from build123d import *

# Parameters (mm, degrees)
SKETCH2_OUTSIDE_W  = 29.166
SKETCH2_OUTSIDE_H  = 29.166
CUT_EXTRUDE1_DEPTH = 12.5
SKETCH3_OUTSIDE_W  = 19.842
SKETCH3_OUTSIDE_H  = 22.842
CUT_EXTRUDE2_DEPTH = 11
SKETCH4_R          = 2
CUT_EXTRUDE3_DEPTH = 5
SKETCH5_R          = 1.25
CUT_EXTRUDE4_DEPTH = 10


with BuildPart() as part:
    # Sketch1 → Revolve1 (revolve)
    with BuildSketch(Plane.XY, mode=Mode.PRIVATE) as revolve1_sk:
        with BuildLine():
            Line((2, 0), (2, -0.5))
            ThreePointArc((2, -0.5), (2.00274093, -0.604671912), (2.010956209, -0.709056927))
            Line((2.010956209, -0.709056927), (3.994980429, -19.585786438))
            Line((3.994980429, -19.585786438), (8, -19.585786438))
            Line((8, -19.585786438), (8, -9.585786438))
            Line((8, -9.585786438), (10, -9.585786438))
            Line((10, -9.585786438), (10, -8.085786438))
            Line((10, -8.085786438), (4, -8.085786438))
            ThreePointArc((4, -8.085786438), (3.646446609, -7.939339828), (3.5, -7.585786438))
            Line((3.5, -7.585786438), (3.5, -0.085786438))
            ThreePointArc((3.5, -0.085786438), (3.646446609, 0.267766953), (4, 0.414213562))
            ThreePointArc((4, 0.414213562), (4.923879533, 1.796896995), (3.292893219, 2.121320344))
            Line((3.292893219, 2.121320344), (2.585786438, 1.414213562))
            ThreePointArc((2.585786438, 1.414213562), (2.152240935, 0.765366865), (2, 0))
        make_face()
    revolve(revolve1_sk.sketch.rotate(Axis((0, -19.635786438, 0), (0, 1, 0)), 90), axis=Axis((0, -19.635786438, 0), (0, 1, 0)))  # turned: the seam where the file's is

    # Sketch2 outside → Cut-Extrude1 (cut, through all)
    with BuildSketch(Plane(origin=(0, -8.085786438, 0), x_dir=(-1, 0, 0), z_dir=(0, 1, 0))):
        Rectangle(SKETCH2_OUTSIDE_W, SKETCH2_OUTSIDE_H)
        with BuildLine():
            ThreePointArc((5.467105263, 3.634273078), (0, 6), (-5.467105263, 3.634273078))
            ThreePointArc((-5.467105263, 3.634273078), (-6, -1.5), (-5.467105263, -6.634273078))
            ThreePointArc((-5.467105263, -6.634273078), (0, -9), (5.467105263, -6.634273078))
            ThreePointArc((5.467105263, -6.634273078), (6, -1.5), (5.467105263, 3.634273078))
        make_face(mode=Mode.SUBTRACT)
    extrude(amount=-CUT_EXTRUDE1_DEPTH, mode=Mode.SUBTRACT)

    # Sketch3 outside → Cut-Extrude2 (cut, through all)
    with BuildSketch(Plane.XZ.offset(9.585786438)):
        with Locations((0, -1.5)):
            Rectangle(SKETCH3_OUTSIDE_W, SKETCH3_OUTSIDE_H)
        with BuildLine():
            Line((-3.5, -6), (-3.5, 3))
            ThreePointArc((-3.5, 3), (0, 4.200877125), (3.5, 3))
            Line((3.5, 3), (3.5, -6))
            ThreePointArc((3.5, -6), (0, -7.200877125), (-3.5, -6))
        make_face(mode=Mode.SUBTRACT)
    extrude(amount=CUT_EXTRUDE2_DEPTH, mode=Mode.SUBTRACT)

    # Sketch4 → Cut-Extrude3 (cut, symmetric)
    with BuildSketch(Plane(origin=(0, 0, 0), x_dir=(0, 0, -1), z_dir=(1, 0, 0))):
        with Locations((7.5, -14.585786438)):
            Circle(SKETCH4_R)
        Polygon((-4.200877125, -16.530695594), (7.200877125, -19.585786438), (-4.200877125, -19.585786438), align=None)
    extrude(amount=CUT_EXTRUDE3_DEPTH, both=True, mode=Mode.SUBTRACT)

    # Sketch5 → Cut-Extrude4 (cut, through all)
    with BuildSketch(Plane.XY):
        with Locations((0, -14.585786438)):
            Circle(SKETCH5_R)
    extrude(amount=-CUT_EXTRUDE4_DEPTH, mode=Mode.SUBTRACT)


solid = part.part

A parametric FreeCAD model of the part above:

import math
import FreeCAD as App
import Part
import Sketcher

V = App.Vector
Q = App.Units.Quantity


def add_polygon(sketch, points):
    """Adds a closed chain of lines whose ends are joined by coincident constraints."""
    first, n = sketch.GeometryCount, len(points)
    for a, b in zip(points, points[1:] + points[:1]):
        sketch.addGeometry(Part.LineSegment(App.Vector(*a, 0), App.Vector(*b, 0)), False)
    for i in range(n):
        sketch.addConstraint(Sketcher.Constraint("Coincident", first + i, 2, first + (i + 1) % n, 1))

doc = App.newDocument("Part")
body = doc.addObject("PartDesign::Body", "Body")

# Sketch on XY plane
sketch1 = body.newObject("Sketcher::SketchObject", "Sketch")
sketch1.AttachmentSupport = (doc.getObject("XY_Plane"), [""])
sketch1.MapMode = "FlatFace"
sketch1.addGeometry([
    Part.LineSegment(V(2, 0, 0), V(2, -0.5, 0)),  # 0
    Part.ArcOfCircle(Part.Circle(V(4, -0.5, 0), V(0, 0, 1), 2), math.radians(180), math.radians(186)),  # 1
    Part.LineSegment(V(2.01, -0.71, 0), V(3.99, -19.59, 0)),  # 2
    Part.LineSegment(V(3.99, -19.59, 0), V(8, -19.59, 0)),  # 3
    Part.LineSegment(V(8, -19.59, 0), V(8, -9.59, 0)),  # 4
    Part.LineSegment(V(8, -9.59, 0), V(10, -9.59, 0)),  # 5
    Part.LineSegment(V(10, -9.59, 0), V(10, -8.09, 0)),  # 6
    Part.LineSegment(V(10, -8.09, 0), V(4, -8.09, 0)),  # 7
    Part.ArcOfCircle(Part.Circle(V(4, -7.59, 0), V(0, 0, 1), 0.5), math.radians(180), math.radians(270)),  # 8
    Part.LineSegment(V(3.5, -7.59, 0), V(3.5, -0.09, 0)),  # 9
    Part.ArcOfCircle(Part.Circle(V(4, -0.09, 0), V(0, 0, 1), 0.5), math.radians(90), math.radians(180)),  # 10
    Part.ArcOfCircle(Part.Circle(V(4, 1.41, 0), V(0, 0, 1), 1), math.radians(-90), math.radians(135)),  # 11
    Part.LineSegment(V(3.29, 2.12, 0), V(2.59, 1.41, 0)),  # 12
    Part.ArcOfCircle(Part.Circle(V(4, 0, 0), V(0, 0, 1), 2), math.radians(135), math.radians(180)),  # 13
], False)
sketch1.addConstraint([
    Sketcher.Constraint("Tangent", 0, 2, 1, 1),
    Sketcher.Constraint("Tangent", 1, 2, 2, 1),
    Sketcher.Constraint("Coincident", 2, 2, 3, 1),
    Sketcher.Constraint("Coincident", 3, 2, 4, 1),
    Sketcher.Constraint("Coincident", 4, 2, 5, 1),
    Sketcher.Constraint("Coincident", 5, 2, 6, 1),
    Sketcher.Constraint("Coincident", 6, 2, 7, 1),
    Sketcher.Constraint("Tangent", 7, 2, 8, 2),
    Sketcher.Constraint("Tangent", 8, 1, 9, 1),
    Sketcher.Constraint("Tangent", 9, 2, 10, 2),
    Sketcher.Constraint("Tangent", 10, 1, 11, 1),
    Sketcher.Constraint("Tangent", 11, 2, 12, 1),
    Sketcher.Constraint("Tangent", 12, 2, 13, 1),
    Sketcher.Constraint("Tangent", 13, 2, 0, 1),
    Sketcher.Constraint("Vertical", 0),
    Sketcher.Constraint("Horizontal", 3),
    Sketcher.Constraint("Vertical", 4),
    Sketcher.Constraint("Horizontal", 5),
    Sketcher.Constraint("Vertical", 6),
    Sketcher.Constraint("Horizontal", 7),
    Sketcher.Constraint("Vertical", 9),
    Sketcher.Constraint("Equal", 8, 10),
    Sketcher.Constraint("Equal", 1, 13),
    Sketcher.Constraint("PointOnObject", 13, 3, -1),
    Sketcher.Constraint("Horizontal", 11, 3, 12, 2),
    Sketcher.Constraint("Vertical", 1, 3, 8, 3),
    Sketcher.Constraint("Vertical", 10, 3, 11, 3),
    Sketcher.Constraint("Radius", 1, Q("2 mm")),
    Sketcher.Constraint("Radius", 11, Q("1 mm")),
    Sketcher.Constraint("Radius", 8, Q("0.5 mm")),
    Sketcher.Constraint("DistanceX", 5, 1, 5, 2, Q("2 mm")),
    Sketcher.Constraint("DistanceX", 7, 2, 7, 1, Q("6 mm")),
    Sketcher.Constraint("DistanceY", 4, 1, 4, 2, Q("10 mm")),
    Sketcher.Constraint("Angle", 2, Q("-84 deg")),
    Sketcher.Constraint("DistanceY", 0, 2, 0, 1, Q("0.5 mm")),
    Sketcher.Constraint("DistanceY", 6, 1, 6, 2, Q("1.5 mm")),
    Sketcher.Constraint("DistanceY", 9, 1, 9, 2, Q("7.5 mm")),
    Sketcher.Constraint("DistanceX", -1, 1, 1, 3, Q("4 mm")),
])
revolution = body.newObject("PartDesign::Revolution", "Revolution")
revolution.Profile = sketch1
revolution.ReferenceAxis = (sketch1, ["V_Axis"])
revolution.Angle = 360

# Sketch on XZ plane
sketch2 = body.newObject("Sketcher::SketchObject", "Sketch001")
sketch2.AttachmentSupport = (doc.getObject("XZ_Plane"), [""])
sketch2.MapMode = "FlatFace"
sketch2.AttachmentOffset = App.Placement(V(0, 0, 8.085786), App.Rotation())
add_polygon(sketch2, [(15, 15), (15, -15), (-15, -15), (-15, 15)])  # lines 0-3
sketch2.addGeometry(Part.ArcOfCircle(Part.Circle(V(0, -1, 0), V(0, 0, 1), 7), math.radians(43), math.radians(137)), False)  # 4
sketch2.addGeometry(Part.ArcOfCircle(Part.Circle(V(19, -2, 0), V(0, 0, 1), 25), math.radians(168), math.radians(192)), False)  # 5
sketch2.addGeometry(Part.ArcOfCircle(Part.Circle(V(0, -2, 0), V(0, 0, 1), 7), math.radians(-137), math.radians(-43)), False)  # 6
sketch2.addGeometry(Part.ArcOfCircle(Part.Circle(V(-19, -2, 0), V(0, 0, 1), 25), math.radians(-12), math.radians(12)), False)  # 7
sketch2.addConstraint([
    Sketcher.Constraint("Coincident", 4, 2, 5, 1),
    Sketcher.Constraint("Coincident", 5, 2, 6, 1),
    Sketcher.Constraint("Coincident", 6, 2, 7, 1),
    Sketcher.Constraint("Coincident", 7, 2, 4, 1),
    Sketcher.Constraint("Vertical", 0),
    Sketcher.Constraint("Horizontal", 1),
    Sketcher.Constraint("Vertical", 2),
    Sketcher.Constraint("Horizontal", 3),
    Sketcher.Constraint("Coincident", 6, 3, 4, 3),
    Sketcher.Constraint("Equal", 4, 6),
    Sketcher.Constraint("Equal", 5, 7),
    Sketcher.Constraint("Symmetric", 0, 2, 2, 2, -1, 1),
    Sketcher.Constraint("Symmetric", 5, 3, 7, 3, -2),
    Sketcher.Constraint("PointOnObject", 4, 3, -2),
    Sketcher.Constraint("Horizontal", 4, 3, 5, 3),
    Sketcher.Constraint("Equal", 3, 0),
    Sketcher.Constraint("Radius", 5, Q("25 mm")),
    Sketcher.Constraint("Radius", 4, Q("7.5 mm")),
    Sketcher.Constraint("DistanceX", -1, 1, 5, 3, Q("19 mm")),
    Sketcher.Constraint("DistanceY", 4, 3, -1, 1, Q("1.5 mm")),
    Sketcher.Constraint("DistanceX", 1, 2, 1, 1, Q("29.166 mm")),
])
pocket1 = body.newObject("PartDesign::Pocket", "Pocket")
pocket1.Profile = sketch2
pocket1.Type = "ThroughAll"
pocket1.Reversed = True

# Sketch on XZ plane
sketch3 = body.newObject("Sketcher::SketchObject", "Sketch002")
sketch3.AttachmentSupport = (doc.getObject("XZ_Plane"), [""])
sketch3.MapMode = "FlatFace"
sketch3.AttachmentOffset = App.Placement(V(0, 0, 9.585786), App.Rotation())
add_polygon(sketch3, [(-10, 10), (-10, -13), (10, -13), (10, 10)])  # lines 0-3
sketch3.addGeometry(Part.ArcOfCircle(Part.Circle(V(0, -1, 0), V(0, 0, 1), 6), math.radians(-128), math.radians(-52)), False)  # 4
sketch3.addGeometry(Part.LineSegment(V(-4, -6, 0), V(-4, 3, 0)), False)  # 5
sketch3.addGeometry(Part.ArcOfCircle(Part.Circle(V(0, -2, 0), V(0, 0, 1), 6), math.radians(52), math.radians(128)), False)  # 6
sketch3.addGeometry(Part.LineSegment(V(4, 3, 0), V(4, -6, 0)), False)  # 7
sketch3.addConstraint([
    Sketcher.Constraint("Coincident", 4, 1, 5, 1),
    Sketcher.Constraint("Coincident", 5, 2, 6, 2),
    Sketcher.Constraint("Coincident", 6, 1, 7, 1),
    Sketcher.Constraint("Coincident", 7, 2, 4, 2),
    Sketcher.Constraint("Vertical", 0),
    Sketcher.Constraint("Horizontal", 1),
    Sketcher.Constraint("Vertical", 2),
    Sketcher.Constraint("Horizontal", 3),
    Sketcher.Constraint("Vertical", 5),
    Sketcher.Constraint("Vertical", 7),
    Sketcher.Constraint("Coincident", 6, 3, 4, 3),
    Sketcher.Constraint("Equal", 4, 6),
    Sketcher.Constraint("Symmetric", 5, 2, 6, 1, -2),
    Sketcher.Constraint("DistanceY", 5, 1, 5, 2, Q("9 mm")),
    Sketcher.Constraint("DistanceY", 4, 1, -1, 1, Q("6 mm")),
    Sketcher.Constraint("DistanceX", 5, 2, 6, 1, Q("7 mm")),
    Sketcher.Constraint("DistanceX", 1, 1, 1, 2, Q("19.842 mm")),
    Sketcher.Constraint("DistanceY", 0, 2, 0, 1, Q("22.842 mm")),
    Sketcher.Constraint("DistanceX", 0, 2, -1, 1, Q("9.921 mm")),
    Sketcher.Constraint("DistanceY", 0, 2, -1, 1, Q("12.921 mm")),
])
pocket2 = body.newObject("PartDesign::Pocket", "Pocket001")
pocket2.Profile = sketch3
pocket2.Type = "ThroughAll"
pocket2.Reversed = True

# Sketch on YZ plane
sketch4 = body.newObject("Sketcher::SketchObject", "Sketch003")
sketch4.AttachmentSupport = (doc.getObject("YZ_Plane"), [""])
sketch4.MapMode = "FlatFace"
sketch4.addGeometry(Part.Circle(V(-14.6, -7.5, 0), V(0, 0, 1), 2), False)  # 0
add_polygon(sketch4, [(-19.6, -7.2), (-16.5, 4.2), (-19.6, 4.2)])  # lines 1-3
sketch4.addConstraint([
    Sketcher.Constraint("Horizontal", 2),
    Sketcher.Constraint("Vertical", 3),
    Sketcher.Constraint("Diameter", 0, Q("4 mm")),
    Sketcher.Constraint("Angle", 1, Q("75 deg")),
    Sketcher.Constraint("DistanceX", 2, 2, 0, 3, Q("5 mm")),
    Sketcher.Constraint("DistanceY", 0, 3, -1, 1, Q("7.5 mm")),
    Sketcher.Constraint("DistanceX", 2, 2, 2, 1, Q("3.055091 mm")),
    Sketcher.Constraint("DistanceX", 0, 3, -1, 1, Q("14.585786 mm")),
    Sketcher.Constraint("DistanceY", -1, 1, 1, 2, Q("4.200877 mm")),
])
pocket3 = body.newObject("PartDesign::Pocket", "Pocket002")
pocket3.Profile = sketch4
pocket3.Length = 10
pocket3.Midplane = True

# Sketch on XY plane
sketch5 = body.newObject("Sketcher::SketchObject", "Sketch004")
sketch5.AttachmentSupport = (doc.getObject("XY_Plane"), [""])
sketch5.MapMode = "FlatFace"
sketch5.addGeometry(Part.Circle(V(0, -14.6, 0), V(0, 0, 1), 1.2), False)
sketch5.addConstraint([
    Sketcher.Constraint("PointOnObject", 0, 3, -2),
    Sketcher.Constraint("Diameter", 0, Q("2.5 mm")),
    Sketcher.Constraint("DistanceY", 0, 3, -1, 1, Q("14.585786 mm")),
])
pocket4 = body.newObject("PartDesign::Pocket", "Pocket003")
pocket4.Profile = sketch5
pocket4.Type = "ThroughAll"

doc.recompute()
